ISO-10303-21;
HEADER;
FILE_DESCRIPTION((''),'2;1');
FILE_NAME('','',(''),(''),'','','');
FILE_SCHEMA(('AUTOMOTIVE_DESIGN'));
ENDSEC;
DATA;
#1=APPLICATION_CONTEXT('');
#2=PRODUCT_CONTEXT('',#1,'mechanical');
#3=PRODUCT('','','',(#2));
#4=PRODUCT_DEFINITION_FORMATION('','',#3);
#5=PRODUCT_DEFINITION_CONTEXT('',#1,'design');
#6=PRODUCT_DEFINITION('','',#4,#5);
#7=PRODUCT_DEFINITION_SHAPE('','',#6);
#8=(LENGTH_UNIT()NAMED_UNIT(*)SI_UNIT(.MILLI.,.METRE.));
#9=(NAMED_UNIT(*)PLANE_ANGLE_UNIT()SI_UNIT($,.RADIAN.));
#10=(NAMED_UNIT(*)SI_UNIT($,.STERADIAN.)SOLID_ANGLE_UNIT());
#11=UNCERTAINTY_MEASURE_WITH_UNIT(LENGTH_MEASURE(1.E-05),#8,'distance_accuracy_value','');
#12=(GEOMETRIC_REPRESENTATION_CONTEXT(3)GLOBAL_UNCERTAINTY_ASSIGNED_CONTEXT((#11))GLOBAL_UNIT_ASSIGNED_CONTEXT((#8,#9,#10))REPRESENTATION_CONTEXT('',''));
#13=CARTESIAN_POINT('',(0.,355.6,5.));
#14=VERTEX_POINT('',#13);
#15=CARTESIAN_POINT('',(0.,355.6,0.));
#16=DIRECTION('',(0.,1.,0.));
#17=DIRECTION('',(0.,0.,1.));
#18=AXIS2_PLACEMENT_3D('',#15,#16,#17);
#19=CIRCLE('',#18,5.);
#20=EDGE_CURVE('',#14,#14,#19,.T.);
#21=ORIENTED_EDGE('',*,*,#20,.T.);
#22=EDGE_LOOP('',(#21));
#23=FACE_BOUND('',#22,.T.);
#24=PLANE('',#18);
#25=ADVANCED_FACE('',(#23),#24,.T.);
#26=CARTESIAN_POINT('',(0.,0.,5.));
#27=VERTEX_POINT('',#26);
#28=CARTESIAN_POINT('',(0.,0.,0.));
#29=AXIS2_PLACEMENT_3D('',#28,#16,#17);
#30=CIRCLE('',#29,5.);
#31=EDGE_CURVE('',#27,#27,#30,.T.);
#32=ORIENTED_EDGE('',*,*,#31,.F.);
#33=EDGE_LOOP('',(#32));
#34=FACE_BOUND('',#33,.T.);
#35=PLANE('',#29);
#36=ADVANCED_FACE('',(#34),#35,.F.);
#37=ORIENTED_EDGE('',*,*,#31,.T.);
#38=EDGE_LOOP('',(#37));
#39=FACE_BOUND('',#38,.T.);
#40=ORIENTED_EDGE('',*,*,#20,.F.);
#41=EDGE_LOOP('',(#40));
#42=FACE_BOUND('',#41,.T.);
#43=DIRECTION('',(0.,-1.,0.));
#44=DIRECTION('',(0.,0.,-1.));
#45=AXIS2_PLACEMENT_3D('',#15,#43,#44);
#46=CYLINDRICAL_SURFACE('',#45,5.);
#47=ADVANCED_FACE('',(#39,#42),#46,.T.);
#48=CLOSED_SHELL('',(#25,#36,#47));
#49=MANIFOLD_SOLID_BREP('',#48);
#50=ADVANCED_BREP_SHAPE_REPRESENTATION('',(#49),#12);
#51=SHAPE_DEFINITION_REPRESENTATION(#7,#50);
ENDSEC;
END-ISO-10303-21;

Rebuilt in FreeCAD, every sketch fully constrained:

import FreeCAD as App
import Part
import Sketcher
from FreeCAD import Vector

doc = App.newDocument("Part")
body = doc.addObject("PartDesign::Body", "Body")

sketch1 = body.newObject("Sketcher::SketchObject", "Sketch")
sketch1.AttachmentSupport = (doc.getObject("XZ_Plane"), [""])
sketch1.MapMode = "FlatFace"
sketch1.addGeometry(Part.Circle(Vector(0, 0, 0), Vector(0, 0, 1), 5), False)
sketch1.addConstraint([
    Sketcher.Constraint("Coincident", 0, 3, -1, 1),
    Sketcher.Constraint("Diameter", 0, 10.0),
])
pad1 = body.newObject("PartDesign::Pad", "Pad")
pad1.Profile = sketch1
pad1.Length = 355.6
pad1.Reversed = True

doc.recompute()
